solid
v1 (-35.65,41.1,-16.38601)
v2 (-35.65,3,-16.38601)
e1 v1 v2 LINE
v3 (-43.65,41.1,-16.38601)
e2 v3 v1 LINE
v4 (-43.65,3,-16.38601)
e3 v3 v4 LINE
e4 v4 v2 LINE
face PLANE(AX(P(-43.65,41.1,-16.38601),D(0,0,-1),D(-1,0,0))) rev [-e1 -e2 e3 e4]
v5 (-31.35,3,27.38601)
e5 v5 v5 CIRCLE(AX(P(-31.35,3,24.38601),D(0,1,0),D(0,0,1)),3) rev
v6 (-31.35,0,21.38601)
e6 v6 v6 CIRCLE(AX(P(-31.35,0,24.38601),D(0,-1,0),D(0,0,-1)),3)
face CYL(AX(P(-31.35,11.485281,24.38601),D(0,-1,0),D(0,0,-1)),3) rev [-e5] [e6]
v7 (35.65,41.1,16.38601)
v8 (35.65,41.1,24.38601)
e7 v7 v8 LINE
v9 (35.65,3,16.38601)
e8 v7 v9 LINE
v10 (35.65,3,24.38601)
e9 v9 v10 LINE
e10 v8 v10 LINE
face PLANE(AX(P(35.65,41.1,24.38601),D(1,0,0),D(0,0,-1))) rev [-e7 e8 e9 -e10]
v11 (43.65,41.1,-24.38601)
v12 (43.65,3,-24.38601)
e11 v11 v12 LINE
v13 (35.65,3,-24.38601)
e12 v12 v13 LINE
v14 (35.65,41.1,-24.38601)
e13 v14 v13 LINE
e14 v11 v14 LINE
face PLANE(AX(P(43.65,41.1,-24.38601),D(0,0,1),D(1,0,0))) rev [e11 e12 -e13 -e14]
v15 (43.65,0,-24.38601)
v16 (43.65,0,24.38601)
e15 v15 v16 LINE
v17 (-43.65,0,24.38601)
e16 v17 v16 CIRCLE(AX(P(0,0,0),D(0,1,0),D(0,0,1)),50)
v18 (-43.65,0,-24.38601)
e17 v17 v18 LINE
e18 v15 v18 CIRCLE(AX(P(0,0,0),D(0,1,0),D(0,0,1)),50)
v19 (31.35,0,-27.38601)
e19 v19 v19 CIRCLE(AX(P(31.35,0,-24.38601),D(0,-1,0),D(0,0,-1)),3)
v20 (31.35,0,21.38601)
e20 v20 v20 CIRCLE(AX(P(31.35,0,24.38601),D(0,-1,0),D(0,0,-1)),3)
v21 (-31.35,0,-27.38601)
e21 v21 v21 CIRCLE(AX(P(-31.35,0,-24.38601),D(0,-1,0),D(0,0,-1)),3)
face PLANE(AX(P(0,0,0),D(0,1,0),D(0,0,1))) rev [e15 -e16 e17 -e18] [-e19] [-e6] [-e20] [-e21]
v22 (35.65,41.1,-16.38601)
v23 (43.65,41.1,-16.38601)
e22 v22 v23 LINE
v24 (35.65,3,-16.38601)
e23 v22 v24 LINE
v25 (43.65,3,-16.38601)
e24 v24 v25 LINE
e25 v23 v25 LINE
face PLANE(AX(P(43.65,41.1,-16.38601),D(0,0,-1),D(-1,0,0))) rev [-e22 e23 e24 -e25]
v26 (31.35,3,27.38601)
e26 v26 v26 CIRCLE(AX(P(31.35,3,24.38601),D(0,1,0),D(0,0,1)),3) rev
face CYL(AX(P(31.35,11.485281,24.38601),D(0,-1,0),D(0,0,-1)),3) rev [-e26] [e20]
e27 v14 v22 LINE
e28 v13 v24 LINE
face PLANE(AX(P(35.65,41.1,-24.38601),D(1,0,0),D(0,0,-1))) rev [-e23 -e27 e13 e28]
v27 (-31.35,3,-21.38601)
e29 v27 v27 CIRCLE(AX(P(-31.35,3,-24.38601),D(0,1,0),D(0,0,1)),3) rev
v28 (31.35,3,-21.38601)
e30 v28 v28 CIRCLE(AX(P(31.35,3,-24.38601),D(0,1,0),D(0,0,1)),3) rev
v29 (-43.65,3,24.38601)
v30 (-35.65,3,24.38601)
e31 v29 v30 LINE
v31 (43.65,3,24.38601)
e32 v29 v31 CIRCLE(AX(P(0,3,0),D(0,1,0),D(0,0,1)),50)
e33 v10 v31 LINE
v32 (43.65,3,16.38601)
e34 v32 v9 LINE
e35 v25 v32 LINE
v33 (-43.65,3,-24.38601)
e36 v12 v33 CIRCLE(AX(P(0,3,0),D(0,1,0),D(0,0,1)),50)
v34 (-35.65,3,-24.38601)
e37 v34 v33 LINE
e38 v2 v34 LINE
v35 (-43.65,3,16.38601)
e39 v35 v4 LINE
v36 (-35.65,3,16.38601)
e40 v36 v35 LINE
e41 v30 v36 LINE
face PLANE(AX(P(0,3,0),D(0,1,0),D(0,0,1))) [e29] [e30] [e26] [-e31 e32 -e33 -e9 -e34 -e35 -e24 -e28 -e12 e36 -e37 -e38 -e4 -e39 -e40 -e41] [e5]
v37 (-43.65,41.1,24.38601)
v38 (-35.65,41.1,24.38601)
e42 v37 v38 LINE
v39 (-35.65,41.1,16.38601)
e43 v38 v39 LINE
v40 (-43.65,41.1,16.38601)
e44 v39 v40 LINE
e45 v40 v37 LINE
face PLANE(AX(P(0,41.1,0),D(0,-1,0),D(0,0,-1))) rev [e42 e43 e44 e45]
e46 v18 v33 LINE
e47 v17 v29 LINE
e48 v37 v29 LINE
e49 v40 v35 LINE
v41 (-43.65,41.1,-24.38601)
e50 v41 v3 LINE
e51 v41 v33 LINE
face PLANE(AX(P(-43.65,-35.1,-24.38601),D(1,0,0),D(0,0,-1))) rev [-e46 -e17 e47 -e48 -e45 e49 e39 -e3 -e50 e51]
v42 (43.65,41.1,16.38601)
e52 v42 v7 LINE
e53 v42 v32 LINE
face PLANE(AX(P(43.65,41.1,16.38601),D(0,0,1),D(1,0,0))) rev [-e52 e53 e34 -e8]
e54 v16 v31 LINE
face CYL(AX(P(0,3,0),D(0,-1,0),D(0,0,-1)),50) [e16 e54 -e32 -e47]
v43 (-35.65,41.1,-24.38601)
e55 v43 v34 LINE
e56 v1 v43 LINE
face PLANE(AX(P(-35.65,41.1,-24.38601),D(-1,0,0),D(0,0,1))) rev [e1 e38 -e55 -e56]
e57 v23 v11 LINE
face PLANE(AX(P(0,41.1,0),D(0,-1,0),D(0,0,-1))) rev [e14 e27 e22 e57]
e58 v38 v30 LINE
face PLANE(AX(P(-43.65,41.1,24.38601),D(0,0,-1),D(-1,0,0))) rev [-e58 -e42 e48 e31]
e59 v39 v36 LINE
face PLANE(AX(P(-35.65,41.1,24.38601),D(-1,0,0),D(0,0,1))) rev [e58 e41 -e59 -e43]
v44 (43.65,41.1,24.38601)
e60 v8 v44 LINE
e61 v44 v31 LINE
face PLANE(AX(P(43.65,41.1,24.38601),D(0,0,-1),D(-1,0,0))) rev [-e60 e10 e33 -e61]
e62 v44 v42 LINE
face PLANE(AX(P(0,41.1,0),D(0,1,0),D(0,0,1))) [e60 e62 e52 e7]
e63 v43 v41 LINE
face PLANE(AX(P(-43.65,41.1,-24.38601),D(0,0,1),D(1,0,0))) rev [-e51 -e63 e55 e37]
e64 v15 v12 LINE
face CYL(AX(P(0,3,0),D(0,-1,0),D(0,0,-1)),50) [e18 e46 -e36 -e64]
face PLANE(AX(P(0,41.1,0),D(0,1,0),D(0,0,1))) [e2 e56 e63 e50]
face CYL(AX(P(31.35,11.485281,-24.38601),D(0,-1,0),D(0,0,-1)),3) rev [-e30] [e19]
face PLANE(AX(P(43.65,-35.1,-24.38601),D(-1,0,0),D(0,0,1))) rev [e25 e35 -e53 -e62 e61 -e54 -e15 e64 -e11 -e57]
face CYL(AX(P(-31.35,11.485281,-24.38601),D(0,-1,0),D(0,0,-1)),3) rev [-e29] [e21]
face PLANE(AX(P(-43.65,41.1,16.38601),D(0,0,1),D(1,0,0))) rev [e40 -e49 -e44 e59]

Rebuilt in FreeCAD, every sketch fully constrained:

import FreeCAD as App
import Part
import Sketcher
from FreeCAD import Vector


def add_polygon(sketch, points):
    """Adds a closed chain of lines whose ends are joined by coincident constraints."""
    first, n = sketch.GeometryCount, len(points)
    for a, b in zip(points, points[1:] + points[:1]):
        sketch.addGeometry(Part.LineSegment(App.Vector(*a, 0), App.Vector(*b, 0)), False)
    for i in range(n):
        sketch.addConstraint(Sketcher.Constraint("Coincident", first + i, 2, first + (i + 1) % n, 1))

doc = App.newDocument("Part")
params = doc.addObject("Spreadsheet::Sheet", "Params")
for row, (alias, value) in enumerate([
    ("sketch1_diameter", "100 mm"),
    ("pad1_length", "3 mm"),
    ("sketch2_width", "6.35 mm"),
    ("pocket1_length", "38.1 mm"),
    ("sketch3_width", "8 mm"),
    ("pad2_length", "38.1 mm"),
    ("sketch4_diameter", "6 mm"),
    ("pocket2_length", "3 mm"),
], start=1):
    params.set(f"A{row}", alias)
    params.set(f"B{row}", "=" + value)
    params.setAlias(f"B{row}", alias)

body = doc.addObject("PartDesign::Body", "Body")

sketch1 = body.newObject("Sketcher::SketchObject", "Sketch")
sketch1.AttachmentSupport = (doc.getObject("XZ_Plane"), [""])
sketch1.MapMode = "FlatFace"
sketch1.addGeometry(Part.Circle(Vector(0, 0, 0), Vector(0, 0, 1), 50), False)
sketch1.addConstraint([
    Sketcher.Constraint("Coincident", 0, 3, -1, 1),
    Sketcher.Constraint("Diameter", 0, 100.0),
])
sketch1.setExpression("Constraints[1]", "Params.sketch1_diameter")
pad1 = body.newObject("PartDesign::Pad", "Pad")
pad1.Profile = sketch1
pad1.setExpression("Length", "Params.pad1_length")
pad1.Reversed = True

sketch2 = body.newObject("Sketcher::SketchObject", "Sketch001")
sketch2.AttachmentSupport = (doc.getObject("XZ_Plane"), [""])
sketch2.MapMode = "FlatFace"
sketch2.AttachmentOffset = App.Placement(Vector(0, 0, -3), App.Rotation())
add_polygon(sketch2, [(-44, 24), (-44, -24), (-50, -24), (-50, 24)])
add_polygon(sketch2, [(44, -24), (44, 24), (50, 24), (50, -24)])
sketch2.addConstraint([
    Sketcher.Constraint("Vertical", 0),
    Sketcher.Constraint("Horizontal", 1),
    Sketcher.Constraint("Vertical", 2),
    Sketcher.Constraint("Horizontal", 3),
    Sketcher.Constraint("Vertical", 4),
    Sketcher.Constraint("Horizontal", 5),
    Sketcher.Constraint("Vertical", 6),
    Sketcher.Constraint("Horizontal", 7),
    Sketcher.Constraint("Symmetric", 0, 2, 4, 2, -1, 1),
    Sketcher.Constraint("Symmetric", 2, 2, 6, 2, -1, 1),
    Sketcher.Constraint("Horizontal", 3, 2, 4, 2),
    Sketcher.Constraint("DistanceX", 1, 2, -1, 1, 50.0),
    Sketcher.Constraint("DistanceX", 1, 2, 1, 1, 6.35),
    Sketcher.Constraint("DistanceY", 0, 2, 0, 1, 48.772021),
])
sketch2.setExpression("Constraints[20]", "Params.sketch2_width")
pocket1 = body.newObject("PartDesign::Pocket", "Pocket")
pocket1.Profile = sketch2
pocket1.setExpression("Length", "Params.pocket1_length")
pocket1.Reversed = True

sketch3 = body.newObject("Sketcher::SketchObject", "Sketch002")
sketch3.AttachmentSupport = (doc.getObject("XZ_Plane"), [""])
sketch3.MapMode = "FlatFace"
sketch3.AttachmentOffset = App.Placement(Vector(0, 0, -3), App.Rotation())
add_polygon(sketch3, [(-44, -24), (-44, -16), (-36, -16), (-36, -24)])
add_polygon(sketch3, [(36, -24), (36, -16), (44, -16), (44, -24)])
add_polygon(sketch3, [(36, 16), (36, 24), (44, 24), (44, 16)])
add_polygon(sketch3, [(-44, 16), (-44, 24), (-36, 24), (-36, 16)])
sketch3.addConstraint([
    Sketcher.Constraint("Vertical", 0),
    Sketcher.Constraint("Horizontal", 1),
    Sketcher.Constraint("Vertical", 2),
    Sketcher.Constraint("Horizontal", 3),
    Sketcher.Constraint("Vertical", 4),
    Sketcher.Constraint("Horizontal", 5),
    Sketcher.Constraint("Vertical", 6),
    Sketcher.Constraint("Horizontal", 7),
    Sketcher.Constraint("Vertical", 8),
    Sketcher.Constraint("Horizontal", 9),
    Sketcher.Constraint("Vertical", 10),
    Sketcher.Constraint("Horizontal", 11),
    Sketcher.Constraint("Vertical", 12),
    Sketcher.Constraint("Horizontal", 13),
    Sketcher.Constraint("Vertical", 14),
    Sketcher.Constraint("Horizontal", 15),
    Sketcher.Constraint("Symmetric", 2, 2, 8, 2, -1, 1),
    Sketcher.Constraint("Symmetric", 0, 2, 10, 2, -1, 1),
    Sketcher.Constraint("Symmetric", 6, 2, 12, 2, -1, 1),
    Sketcher.Constraint("Symmetric", 4, 2, 14, 2, -1, 1),
    Sketcher.Constraint("Symmetric", 1, 2, 4, 2, -2),
    Sketcher.Constraint("Symmetric", 3, 2, 6, 2, -2),
    Sketcher.Constraint("Equal", 15, 0),
    Sketcher.Constraint("DistanceX", 1, 1, 1, 2, 8.0),
    Sketcher.Constraint("DistanceX", 1, 2, 4, 2, 71.3),
    Sketcher.Constraint("DistanceY", 0, 2, -1, 1, 16.38601),
])
sketch3.setExpression("Constraints[39]", "Params.sketch3_width")
pad2 = body.newObject("PartDesign::Pad", "Pad001")
pad2.Profile = sketch3
pad2.setExpression("Length", "Params.pad2_length")
pad2.Reversed = True

sketch4 = body.newObject("Sketcher::SketchObject", "Sketch003")
sketch4.AttachmentSupport = (doc.getObject("XZ_Plane"), [""])
sketch4.MapMode = "FlatFace"
sketch4.addGeometry([
    Part.Circle(Vector(-31.4, 24.4, 0), Vector(0, 0, 1), 3),
    Part.Circle(Vector(-31.4, -24.4, 0), Vector(0, 0, 1), 3),
    Part.Circle(Vector(31.4, -24.4, 0), Vector(0, 0, 1), 3),
    Part.Circle(Vector(31.4, 24.4, 0), Vector(0, 0, 1), 3),
], False)
sketch4.addConstraint([
    Sketcher.Constraint("Equal", 0, 1),
    Sketcher.Constraint("Equal", 1, 2),
    Sketcher.Constraint("Equal", 2, 3),
    Sketcher.Constraint("Symmetric", 0, 3, 2, 3, -1, 1),
    Sketcher.Constraint("Symmetric", 1, 3, 3, 3, -1, 1),
    Sketcher.Constraint("Symmetric", 1, 3, 2, 3, -2),
    Sketcher.Constraint("Diameter", 0, 6.0),
    Sketcher.Constraint("DistanceX", 1, 3, 2, 3, 62.7),
    Sketcher.Constraint("DistanceY", -1, 1, 0, 3, 24.38601),
])
sketch4.setExpression("Constraints[6]", "Params.sketch4_diameter")
pocket2 = body.newObject("PartDesign::Pocket", "Pocket001")
pocket2.Profile = sketch4
pocket2.setExpression("Length", "Params.pocket2_length")

doc.recompute()
